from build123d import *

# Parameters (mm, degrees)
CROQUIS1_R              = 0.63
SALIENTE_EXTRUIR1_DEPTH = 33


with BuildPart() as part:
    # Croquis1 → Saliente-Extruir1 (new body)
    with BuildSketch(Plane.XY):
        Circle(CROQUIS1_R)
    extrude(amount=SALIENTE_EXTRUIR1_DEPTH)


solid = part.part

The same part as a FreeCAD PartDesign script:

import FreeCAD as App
import Part
import Sketcher
Q = App.Units.Quantity

doc = App.newDocument("Part")
params = doc.addObject("Spreadsheet::Sheet", "Params")
for row, (alias, value) in enumerate([
    ("sketch1_diameter", "1.26 mm"),
    ("pad1_length", "33 mm"),
], start=1):
    params.set(f"A{row}", alias)
    params.set(f"B{row}", "=" + value)
    params.setAlias(f"B{row}", alias)

body = doc.addObject("PartDesign::Body", "Body")

# Sketch on XY plane
sketch1 = doc.addObject("Sketcher::SketchObject", "Sketch")
body.addObject(sketch1)
sketch1.AttachmentSupport = (doc.XY_Plane, [""])
sketch1.MapMode = "FlatFace"
sketch1.addGeometry(Part.Circle(App.Vector(0, 0, 0), App.Vector(0, 0, 1), 0.6), False)
sketch1.addConstraint([
    Sketcher.Constraint("Coincident", 0, 3, -1, 1),
    Sketcher.Constraint("Diameter", 0, Q("1.26 mm")),
])
sketch1.setExpression("Constraints[1]", "Params.sketch1_diameter")
pad1 = doc.addObject("PartDesign::Pad", "Pad")
body.addObject(pad1)
pad1.Profile = sketch1
pad1.setExpression("Length", "Params.pad1_length")

doc.recompute()
